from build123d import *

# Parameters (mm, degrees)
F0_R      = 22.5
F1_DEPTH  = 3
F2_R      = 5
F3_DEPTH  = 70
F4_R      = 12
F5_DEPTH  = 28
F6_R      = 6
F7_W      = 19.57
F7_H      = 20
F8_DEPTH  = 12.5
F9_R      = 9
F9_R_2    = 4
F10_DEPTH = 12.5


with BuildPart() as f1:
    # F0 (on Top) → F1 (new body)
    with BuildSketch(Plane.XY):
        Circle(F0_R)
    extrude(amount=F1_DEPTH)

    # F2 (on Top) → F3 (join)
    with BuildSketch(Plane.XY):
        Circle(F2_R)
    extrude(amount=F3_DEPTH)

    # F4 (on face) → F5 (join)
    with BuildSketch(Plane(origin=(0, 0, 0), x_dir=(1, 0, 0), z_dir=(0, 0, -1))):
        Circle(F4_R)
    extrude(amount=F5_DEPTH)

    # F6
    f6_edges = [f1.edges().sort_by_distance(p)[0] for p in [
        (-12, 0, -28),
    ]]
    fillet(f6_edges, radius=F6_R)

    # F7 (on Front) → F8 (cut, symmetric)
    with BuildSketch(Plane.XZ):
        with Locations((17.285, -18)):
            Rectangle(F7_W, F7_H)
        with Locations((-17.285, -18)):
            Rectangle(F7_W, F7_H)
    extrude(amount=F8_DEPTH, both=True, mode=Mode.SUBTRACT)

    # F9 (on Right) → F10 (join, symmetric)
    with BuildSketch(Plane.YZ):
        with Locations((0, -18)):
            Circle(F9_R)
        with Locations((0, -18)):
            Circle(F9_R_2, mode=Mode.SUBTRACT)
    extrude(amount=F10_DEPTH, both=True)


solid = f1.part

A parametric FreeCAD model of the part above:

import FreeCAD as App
import Part
import Sketcher

V = App.Vector


def edges_at(feature, points):
    """Names of the edges that pass closest to the given points."""
    edges = feature.Shape.Edges
    near = lambda p: min(range(len(edges)), key=lambda i: edges[i].distToShape(Part.Vertex(*p))[0])
    return sorted({f"Edge{near(p) + 1}" for p in points})


def add_polygon(sketch, points):
    """Adds a closed chain of lines whose ends are joined by coincident constraints."""
    first, n = sketch.GeometryCount, len(points)
    for a, b in zip(points, points[1:] + points[:1]):
        sketch.addGeometry(Part.LineSegment(App.Vector(*a, 0), App.Vector(*b, 0)), False)
    for i in range(n):
        sketch.addConstraint(Sketcher.Constraint("Coincident", first + i, 2, first + (i + 1) % n, 1))

doc = App.newDocument("Part")
params = doc.addObject("Spreadsheet::Sheet", "Params")
for row, (alias, value) in enumerate([
    ("sketch1_diameter", "45 mm"),
    ("pad1_length", "3 mm"),
    ("sketch2_diameter", "10 mm"),
    ("pad2_length", "70 mm"),
    ("sketch3_diameter", "24 mm"),
    ("pad3_length", "28 mm"),
    ("fillet_radius", "6 mm"),
    ("sketch4_height", "20 mm"),
    ("sketch4_width", "19.57 mm"),
    ("pocket1_length", "25 mm"),
    ("sketch5_diameter", "18 mm"),
    ("sketch5_diameter2", "8 mm"),
    ("pad4_length", "25 mm"),
], start=1):
    params.set(f"A{row}", alias)
    params.set(f"B{row}", "=" + value)
    params.setAlias(f"B{row}", alias)

body = doc.addObject("PartDesign::Body", "Body")

# Sketch on XY plane
sketch1 = doc.addObject("Sketcher::SketchObject", "Sketch")
body.addObject(sketch1)
sketch1.AttachmentSupport = (doc.XY_Plane, [""])
sketch1.MapMode = "FlatFace"
sketch1.addGeometry(Part.Circle(V(0, 0, 0), V(0, 0, 1), 22), False)
sketch1.addConstraint([
    Sketcher.Constraint("Coincident", 0, 3, -1, 1),
    Sketcher.Constraint("Diameter", 0, 45.0),
])
sketch1.setExpression("Constraints[1]", "Params.sketch1_diameter")
pad1 = doc.addObject("PartDesign::Pad", "Pad")
body.addObject(pad1)
pad1.Profile = sketch1
pad1.setExpression("Length", "Params.pad1_length")

# Sketch on XY plane
sketch2 = doc.addObject("Sketcher::SketchObject", "Sketch001")
body.addObject(sketch2)
sketch2.AttachmentSupport = (doc.XY_Plane, [""])
sketch2.MapMode = "FlatFace"
sketch2.addGeometry(Part.Circle(V(0, 0, 0), V(0, 0, 1), 5), False)
sketch2.addConstraint([
    Sketcher.Constraint("Coincident", 0, 3, -1, 1),
    Sketcher.Constraint("Diameter", 0, 10.0),
])
sketch2.setExpression("Constraints[1]", "Params.sketch2_diameter")
pad2 = doc.addObject("PartDesign::Pad", "Pad001")
body.addObject(pad2)
pad2.Profile = sketch2
pad2.setExpression("Length", "Params.pad2_length")

# Sketch on XY plane
sketch3 = doc.addObject("Sketcher::SketchObject", "Sketch002")
body.addObject(sketch3)
sketch3.AttachmentSupport = (doc.XY_Plane, [""])
sketch3.MapMode = "FlatFace"
sketch3.addGeometry(Part.Circle(V(0, 0, 0), V(0, 0, 1), 12), False)
sketch3.addConstraint([
    Sketcher.Constraint("Coincident", 0, 3, -1, 1),
    Sketcher.Constraint("Diameter", 0, 24.0),
])
sketch3.setExpression("Constraints[1]", "Params.sketch3_diameter")
pad3 = doc.addObject("PartDesign::Pad", "Pad002")
body.addObject(pad3)
pad3.Profile = sketch3
pad3.setExpression("Length", "Params.pad3_length")
pad3.Reversed = True
doc.recompute()

fillet = doc.addObject("PartDesign::Fillet", "Fillet")
body.addObject(fillet)
fillet.Base = (pad3, edges_at(pad3, [(-12, 0, -28)]))
fillet.setExpression("Radius", "Params.fillet_radius")

# Sketch on XZ plane
sketch4 = doc.addObject("Sketcher::SketchObject", "Sketch003")
body.addObject(sketch4)
sketch4.AttachmentSupport = (doc.XZ_Plane, [""])
sketch4.MapMode = "FlatFace"
add_polygon(sketch4, [(8, -8), (8, -28), (27, -28), (27, -8)])  # lines 0-3
add_polygon(sketch4, [(-27, -8), (-27, -28), (-8, -28), (-8, -8)])  # lines 4-7
sketch4.addConstraint([
    Sketcher.Constraint("Vertical", 0),
    Sketcher.Constraint("Horizontal", 1),
    Sketcher.Constraint("Vertical", 2),
    Sketcher.Constraint("Horizontal", 3),
    Sketcher.Constraint("Vertical", 4),
    Sketcher.Constraint("Horizontal", 5),
    Sketcher.Constraint("Vertical", 6),
    Sketcher.Constraint("Horizontal", 7),
    Sketcher.Constraint("Symmetric", 1, 2, 4, 2, -2),
    Sketcher.Constraint("Symmetric", 3, 2, 6, 2, -2),
    Sketcher.Constraint("DistanceY", 0, 2, 0, 1, 20.0),
    Sketcher.Constraint("DistanceY", 0, 2, -1, 1, 28.0),
    Sketcher.Constraint("DistanceX", 5, 2, 0, 2, 15.0),
    Sketcher.Constraint("DistanceX", 1, 1, 1, 2, 19.57),
])
sketch4.setExpression("Constraints[18]", "Params.sketch4_height")
sketch4.setExpression("Constraints[21]", "Params.sketch4_width")
pocket1 = doc.addObject("PartDesign::Pocket", "Pocket")
body.addObject(pocket1)
pocket1.Profile = sketch4
pocket1.setExpression("Length", "Params.pocket1_length")
pocket1.Midplane = True

# Sketch on YZ plane
sketch5 = doc.addObject("Sketcher::SketchObject", "Sketch004")
body.addObject(sketch5)
sketch5.AttachmentSupport = (doc.YZ_Plane, [""])
sketch5.MapMode = "FlatFace"
sketch5.addGeometry([
    Part.Circle(V(0, -18, 0), V(0, 0, 1), 9),
    Part.Circle(V(0, -18, 0), V(0, 0, 1), 4),
], False)
sketch5.addConstraint([
    Sketcher.Constraint("Coincident", 1, 3, 0, 3),
    Sketcher.Constraint("PointOnObject", 0, 3, -2),
    Sketcher.Constraint("Diameter", 0, 18.0),
    Sketcher.Constraint("Diameter", 1, 8.0),
    Sketcher.Constraint("DistanceY", 0, 3, -1, 1, 18.0),
])
sketch5.setExpression("Constraints[2]", "Params.sketch5_diameter")
sketch5.setExpression("Constraints[3]", "Params.sketch5_diameter2")
pad4 = doc.addObject("PartDesign::Pad", "Pad003")
body.addObject(pad4)
pad4.Profile = sketch5
pad4.setExpression("Length", "Params.pad4_length")
pad4.Midplane = True

doc.recompute()
